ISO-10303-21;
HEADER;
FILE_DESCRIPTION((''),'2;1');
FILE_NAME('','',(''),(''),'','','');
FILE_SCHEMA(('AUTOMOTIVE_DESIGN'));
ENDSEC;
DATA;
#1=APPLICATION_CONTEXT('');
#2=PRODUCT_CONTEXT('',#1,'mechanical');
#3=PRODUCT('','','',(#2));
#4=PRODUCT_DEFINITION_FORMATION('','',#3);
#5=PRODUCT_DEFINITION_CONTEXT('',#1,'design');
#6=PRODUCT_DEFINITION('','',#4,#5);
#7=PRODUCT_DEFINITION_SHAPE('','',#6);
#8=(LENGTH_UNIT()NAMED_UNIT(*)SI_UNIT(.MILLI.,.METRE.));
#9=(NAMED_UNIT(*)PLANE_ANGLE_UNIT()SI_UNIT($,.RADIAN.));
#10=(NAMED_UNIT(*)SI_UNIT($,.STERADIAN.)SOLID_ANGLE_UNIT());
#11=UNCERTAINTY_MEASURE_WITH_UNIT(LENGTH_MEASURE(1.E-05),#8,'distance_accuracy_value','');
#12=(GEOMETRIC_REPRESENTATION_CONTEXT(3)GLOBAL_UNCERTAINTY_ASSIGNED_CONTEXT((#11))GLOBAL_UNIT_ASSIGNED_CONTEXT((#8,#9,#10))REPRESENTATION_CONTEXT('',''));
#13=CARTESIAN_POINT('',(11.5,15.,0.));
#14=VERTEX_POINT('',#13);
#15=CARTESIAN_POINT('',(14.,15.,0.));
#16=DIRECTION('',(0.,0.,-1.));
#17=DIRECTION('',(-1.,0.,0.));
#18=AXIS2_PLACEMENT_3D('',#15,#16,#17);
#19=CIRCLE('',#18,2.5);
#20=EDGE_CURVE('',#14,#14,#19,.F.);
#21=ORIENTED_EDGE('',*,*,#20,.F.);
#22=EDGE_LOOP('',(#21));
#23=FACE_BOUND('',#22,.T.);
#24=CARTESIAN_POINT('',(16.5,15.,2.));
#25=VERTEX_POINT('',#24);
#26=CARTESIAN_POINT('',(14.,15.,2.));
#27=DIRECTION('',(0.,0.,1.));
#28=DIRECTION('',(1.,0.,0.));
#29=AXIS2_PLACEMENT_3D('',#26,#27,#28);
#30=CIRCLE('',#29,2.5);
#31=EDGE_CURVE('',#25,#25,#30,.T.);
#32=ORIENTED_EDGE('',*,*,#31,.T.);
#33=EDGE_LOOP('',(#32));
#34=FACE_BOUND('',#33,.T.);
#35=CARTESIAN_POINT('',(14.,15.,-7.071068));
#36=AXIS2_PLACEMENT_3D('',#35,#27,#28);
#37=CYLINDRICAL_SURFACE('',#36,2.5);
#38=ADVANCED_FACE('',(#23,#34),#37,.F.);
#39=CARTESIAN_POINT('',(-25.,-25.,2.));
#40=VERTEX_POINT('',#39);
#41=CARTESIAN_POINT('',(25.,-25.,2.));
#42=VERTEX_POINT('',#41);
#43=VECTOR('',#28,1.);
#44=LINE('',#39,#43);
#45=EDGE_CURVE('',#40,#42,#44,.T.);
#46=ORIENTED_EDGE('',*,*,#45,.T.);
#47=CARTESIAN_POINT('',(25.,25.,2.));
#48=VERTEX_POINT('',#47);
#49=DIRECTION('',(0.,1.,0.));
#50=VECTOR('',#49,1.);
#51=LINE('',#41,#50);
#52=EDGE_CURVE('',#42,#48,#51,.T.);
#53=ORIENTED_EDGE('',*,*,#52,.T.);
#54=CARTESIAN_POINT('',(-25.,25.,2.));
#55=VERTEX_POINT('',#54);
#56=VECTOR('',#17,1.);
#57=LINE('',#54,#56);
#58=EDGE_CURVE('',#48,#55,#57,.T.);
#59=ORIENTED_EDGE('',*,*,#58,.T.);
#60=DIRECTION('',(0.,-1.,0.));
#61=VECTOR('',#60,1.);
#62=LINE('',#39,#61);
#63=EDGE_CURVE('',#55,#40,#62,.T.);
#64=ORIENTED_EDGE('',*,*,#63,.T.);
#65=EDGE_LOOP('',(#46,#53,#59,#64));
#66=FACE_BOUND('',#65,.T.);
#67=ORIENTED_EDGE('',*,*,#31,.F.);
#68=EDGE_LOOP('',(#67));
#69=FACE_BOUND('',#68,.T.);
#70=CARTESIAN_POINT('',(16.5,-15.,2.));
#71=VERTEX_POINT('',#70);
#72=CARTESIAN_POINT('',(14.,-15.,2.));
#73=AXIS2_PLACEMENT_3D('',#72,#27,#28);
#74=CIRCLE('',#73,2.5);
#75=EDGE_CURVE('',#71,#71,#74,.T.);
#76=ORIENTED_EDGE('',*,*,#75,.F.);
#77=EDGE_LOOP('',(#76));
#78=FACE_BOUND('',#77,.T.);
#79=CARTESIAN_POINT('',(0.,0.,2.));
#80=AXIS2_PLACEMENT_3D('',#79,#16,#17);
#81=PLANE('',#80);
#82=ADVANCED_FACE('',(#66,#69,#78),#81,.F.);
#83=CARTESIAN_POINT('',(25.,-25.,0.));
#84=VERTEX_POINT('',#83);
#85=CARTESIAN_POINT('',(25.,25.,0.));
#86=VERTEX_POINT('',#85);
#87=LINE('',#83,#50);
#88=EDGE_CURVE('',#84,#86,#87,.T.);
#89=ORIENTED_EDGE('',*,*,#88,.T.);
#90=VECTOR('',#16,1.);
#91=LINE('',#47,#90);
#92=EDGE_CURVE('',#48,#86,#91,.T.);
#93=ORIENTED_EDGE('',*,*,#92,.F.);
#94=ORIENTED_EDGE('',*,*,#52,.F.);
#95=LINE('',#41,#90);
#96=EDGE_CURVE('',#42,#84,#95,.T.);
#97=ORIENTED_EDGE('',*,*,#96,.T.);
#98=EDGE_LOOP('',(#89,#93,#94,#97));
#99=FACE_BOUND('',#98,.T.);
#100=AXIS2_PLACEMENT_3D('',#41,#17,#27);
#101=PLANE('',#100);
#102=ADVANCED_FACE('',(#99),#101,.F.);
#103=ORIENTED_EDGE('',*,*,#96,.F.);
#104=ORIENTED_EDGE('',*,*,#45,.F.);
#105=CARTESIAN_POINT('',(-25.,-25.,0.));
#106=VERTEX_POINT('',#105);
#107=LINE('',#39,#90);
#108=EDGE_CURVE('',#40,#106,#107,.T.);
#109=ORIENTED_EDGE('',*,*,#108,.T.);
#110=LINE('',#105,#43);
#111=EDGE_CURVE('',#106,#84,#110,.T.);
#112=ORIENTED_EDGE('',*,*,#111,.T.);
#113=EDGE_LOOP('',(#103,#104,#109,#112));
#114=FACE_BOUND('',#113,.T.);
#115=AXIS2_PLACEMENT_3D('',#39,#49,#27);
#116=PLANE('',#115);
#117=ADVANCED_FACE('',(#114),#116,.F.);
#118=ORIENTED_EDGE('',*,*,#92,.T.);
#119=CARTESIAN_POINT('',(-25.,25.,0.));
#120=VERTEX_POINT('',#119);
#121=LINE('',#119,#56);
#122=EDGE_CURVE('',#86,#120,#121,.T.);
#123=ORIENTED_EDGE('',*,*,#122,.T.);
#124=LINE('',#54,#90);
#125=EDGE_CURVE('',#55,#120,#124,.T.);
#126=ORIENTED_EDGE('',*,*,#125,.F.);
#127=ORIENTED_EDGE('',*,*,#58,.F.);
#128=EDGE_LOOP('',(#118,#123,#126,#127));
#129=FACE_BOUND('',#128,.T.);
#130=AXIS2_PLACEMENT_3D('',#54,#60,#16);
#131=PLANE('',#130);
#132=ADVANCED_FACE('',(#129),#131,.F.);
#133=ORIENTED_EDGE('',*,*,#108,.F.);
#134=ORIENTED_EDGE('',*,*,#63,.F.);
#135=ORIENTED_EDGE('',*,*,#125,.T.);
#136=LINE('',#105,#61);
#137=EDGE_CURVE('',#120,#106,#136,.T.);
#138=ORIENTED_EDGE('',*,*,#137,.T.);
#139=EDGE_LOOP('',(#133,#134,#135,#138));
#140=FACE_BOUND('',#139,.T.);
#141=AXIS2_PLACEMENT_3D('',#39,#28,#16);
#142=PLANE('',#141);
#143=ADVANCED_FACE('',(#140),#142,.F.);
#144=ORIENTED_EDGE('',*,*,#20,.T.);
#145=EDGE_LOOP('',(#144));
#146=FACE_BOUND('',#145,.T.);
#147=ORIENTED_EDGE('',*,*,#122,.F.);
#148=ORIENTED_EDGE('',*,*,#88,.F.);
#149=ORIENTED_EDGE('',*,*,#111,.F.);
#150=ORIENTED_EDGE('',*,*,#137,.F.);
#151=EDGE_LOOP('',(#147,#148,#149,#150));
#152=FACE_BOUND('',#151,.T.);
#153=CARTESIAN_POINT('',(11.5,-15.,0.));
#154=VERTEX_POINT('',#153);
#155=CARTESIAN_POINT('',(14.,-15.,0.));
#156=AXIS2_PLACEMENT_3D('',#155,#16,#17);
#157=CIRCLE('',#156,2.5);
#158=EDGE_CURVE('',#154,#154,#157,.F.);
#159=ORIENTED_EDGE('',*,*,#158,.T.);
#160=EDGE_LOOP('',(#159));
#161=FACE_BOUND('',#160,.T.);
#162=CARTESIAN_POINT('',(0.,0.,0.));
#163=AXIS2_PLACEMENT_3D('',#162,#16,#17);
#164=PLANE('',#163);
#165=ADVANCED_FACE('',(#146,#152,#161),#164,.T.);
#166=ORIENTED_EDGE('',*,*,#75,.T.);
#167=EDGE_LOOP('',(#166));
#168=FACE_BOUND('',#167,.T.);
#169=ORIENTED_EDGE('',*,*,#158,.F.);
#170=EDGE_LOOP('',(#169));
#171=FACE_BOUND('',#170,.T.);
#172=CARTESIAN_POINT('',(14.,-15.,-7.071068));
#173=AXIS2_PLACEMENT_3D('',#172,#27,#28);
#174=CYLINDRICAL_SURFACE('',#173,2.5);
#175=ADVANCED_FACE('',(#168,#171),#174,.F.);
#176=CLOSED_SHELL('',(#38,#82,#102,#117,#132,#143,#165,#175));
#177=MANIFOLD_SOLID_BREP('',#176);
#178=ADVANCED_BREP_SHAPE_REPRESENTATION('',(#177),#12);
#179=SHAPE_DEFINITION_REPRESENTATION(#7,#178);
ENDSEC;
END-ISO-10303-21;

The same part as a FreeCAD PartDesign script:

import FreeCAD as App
import Part
import Sketcher

V = App.Vector

doc = App.newDocument("Part")
body = doc.addObject("PartDesign::Body", "Body")

# Sketch on XY plane
sketch1 = doc.addObject("Sketcher::SketchObject", "Sketch")
body.addObject(sketch1)
sketch1.AttachmentSupport = (doc.XY_Plane, [""])
sketch1.MapMode = "FlatFace"
sketch1.addGeometry([
    Part.LineSegment(V(-25, 25, 0), V(-25, -25, 0)),
    Part.LineSegment(V(-25, -25, 0), V(25, -25, 0)),
    Part.LineSegment(V(25, -25, 0), V(25, 25, 0)),
    Part.LineSegment(V(25, 25, 0), V(-25, 25, 0)),
], False)
sketch1.addConstraint([
    Sketcher.Constraint("Coincident", 0, 2, 1, 1),
    Sketcher.Constraint("Coincident", 1, 2, 2, 1),
    Sketcher.Constraint("Coincident", 2, 2, 3, 1),
    Sketcher.Constraint("Coincident", 3, 2, 0, 1),
    Sketcher.Constraint("Vertical", 0),
    Sketcher.Constraint("Horizontal", 1),
    Sketcher.Constraint("Vertical", 2),
    Sketcher.Constraint("Horizontal", 3),
    Sketcher.Constraint("Symmetric", 0, 2, 2, 2, -1, 1),
    Sketcher.Constraint("Equal", 3, 0),
    Sketcher.Constraint("DistanceX", 1, 1, 1, 2, 50.0),
])
pad1 = doc.addObject("PartDesign::Pad", "Pad")
body.addObject(pad1)
pad1.Profile = sketch1
pad1.Length = 2

# Sketch on XY plane
sketch2 = doc.addObject("Sketcher::SketchObject", "Sketch001")
body.addObject(sketch2)
sketch2.AttachmentSupport = (doc.XY_Plane, [""])
sketch2.MapMode = "FlatFace"
sketch2.AttachmentOffset = App.Placement(V(0, 0, 2), App.Rotation())
sketch2.addGeometry([
    Part.Circle(V(14, -15, 0), V(0, 0, 1), 2.5),
    Part.Circle(V(14, 15, 0), V(0, 0, 1), 2.5),
], False)
sketch2.addConstraint([
    Sketcher.Constraint("Equal", 0, 1),
    Sketcher.Constraint("Symmetric", 0, 3, 1, 3, -1),
    Sketcher.Constraint("Diameter", 0, 5.0),
    Sketcher.Constraint("DistanceX", -1, 1, 0, 3, 14.0),
    Sketcher.Constraint("DistanceY", 0, 3, -1, 1, 15.0),
])
pocket1 = doc.addObject("PartDesign::Pocket", "Pocket")
body.addObject(pocket1)
pocket1.Profile = sketch2
pocket1.Length = 2

doc.recompute()
